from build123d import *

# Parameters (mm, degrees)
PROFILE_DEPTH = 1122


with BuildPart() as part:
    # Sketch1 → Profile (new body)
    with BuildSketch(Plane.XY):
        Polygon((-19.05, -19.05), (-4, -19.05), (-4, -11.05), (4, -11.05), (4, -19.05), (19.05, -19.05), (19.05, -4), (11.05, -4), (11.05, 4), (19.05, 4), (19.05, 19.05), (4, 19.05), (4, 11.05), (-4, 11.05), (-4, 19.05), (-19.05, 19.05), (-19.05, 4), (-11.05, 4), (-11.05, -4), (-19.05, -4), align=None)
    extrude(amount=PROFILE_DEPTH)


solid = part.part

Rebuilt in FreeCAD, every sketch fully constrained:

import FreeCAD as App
import Part
import Sketcher


def add_polygon(sketch, points):
    """Adds a closed chain of lines whose ends are joined by coincident constraints."""
    first, n = sketch.GeometryCount, len(points)
    for a, b in zip(points, points[1:] + points[:1]):
        sketch.addGeometry(Part.LineSegment(App.Vector(*a, 0), App.Vector(*b, 0)), False)
    for i in range(n):
        sketch.addConstraint(Sketcher.Constraint("Coincident", first + i, 2, first + (i + 1) % n, 1))

doc = App.newDocument("Part")
body = doc.addObject("PartDesign::Body", "Body")

sketch1 = body.newObject("Sketcher::SketchObject", "Sketch")
sketch1.AttachmentSupport = (doc.getObject("XY_Plane"), [""])
sketch1.MapMode = "FlatFace"
add_polygon(sketch1, [(-19, -19), (-4, -19), (-4, -11), (4, -11), (4, -19), (19, -19), (19, -4), (11, -4), (11, 4), (19, 4), (19, 19), (4, 19), (4, 11), (-4, 11), (-4, 19), (-19, 19), (-19, 4), (-11, 4), (-11, -4), (-19, -4)])
sketch1.addConstraint([
    Sketcher.Constraint("Horizontal", 0),
    Sketcher.Constraint("Vertical", 1),
    Sketcher.Constraint("Horizontal", 2),
    Sketcher.Constraint("Vertical", 3),
    Sketcher.Constraint("Horizontal", 4),
    Sketcher.Constraint("Vertical", 5),
    Sketcher.Constraint("Horizontal", 6),
    Sketcher.Constraint("Vertical", 7),
    Sketcher.Constraint("Horizontal", 8),
    Sketcher.Constraint("Vertical", 9),
    Sketcher.Constraint("Horizontal", 10),
    Sketcher.Constraint("Vertical", 11),
    Sketcher.Constraint("Horizontal", 12),
    Sketcher.Constraint("Vertical", 13),
    Sketcher.Constraint("Horizontal", 14),
    Sketcher.Constraint("Vertical", 15),
    Sketcher.Constraint("Horizontal", 16),
    Sketcher.Constraint("Vertical", 17),
    Sketcher.Constraint("Horizontal", 18),
    Sketcher.Constraint("Vertical", 19),
    Sketcher.Constraint("Symmetric", 0, 2, 10, 2, -1, 1),
    Sketcher.Constraint("Symmetric", 2, 2, 12, 2, -1, 1),
    Sketcher.Constraint("Symmetric", 4, 2, 14, 2, -1, 1),
    Sketcher.Constraint("Symmetric", 6, 2, 16, 2, -1, 1),
    Sketcher.Constraint("Symmetric", 8, 2, 18, 2, -1, 1),
    Sketcher.Constraint("Symmetric", 0, 2, 3, 2, -2),
    Sketcher.Constraint("Symmetric", 8, 2, 15, 2, -2),
    Sketcher.Constraint("Equal", 2, 6),
    Sketcher.Constraint("Equal", 18, 1),
    Sketcher.Constraint("Equal", 14, 5),
    Sketcher.Constraint("Equal", 3, 7),
    Sketcher.Constraint("DistanceX", 2, 1, 2, 2, 8.0),
    Sketcher.Constraint("DistanceX", 0, 1, 0, 2, 15.05),
])
pad1 = body.newObject("PartDesign::Pad", "Pad")
pad1.Profile = sketch1
pad1.Length = 1122

doc.recompute()
